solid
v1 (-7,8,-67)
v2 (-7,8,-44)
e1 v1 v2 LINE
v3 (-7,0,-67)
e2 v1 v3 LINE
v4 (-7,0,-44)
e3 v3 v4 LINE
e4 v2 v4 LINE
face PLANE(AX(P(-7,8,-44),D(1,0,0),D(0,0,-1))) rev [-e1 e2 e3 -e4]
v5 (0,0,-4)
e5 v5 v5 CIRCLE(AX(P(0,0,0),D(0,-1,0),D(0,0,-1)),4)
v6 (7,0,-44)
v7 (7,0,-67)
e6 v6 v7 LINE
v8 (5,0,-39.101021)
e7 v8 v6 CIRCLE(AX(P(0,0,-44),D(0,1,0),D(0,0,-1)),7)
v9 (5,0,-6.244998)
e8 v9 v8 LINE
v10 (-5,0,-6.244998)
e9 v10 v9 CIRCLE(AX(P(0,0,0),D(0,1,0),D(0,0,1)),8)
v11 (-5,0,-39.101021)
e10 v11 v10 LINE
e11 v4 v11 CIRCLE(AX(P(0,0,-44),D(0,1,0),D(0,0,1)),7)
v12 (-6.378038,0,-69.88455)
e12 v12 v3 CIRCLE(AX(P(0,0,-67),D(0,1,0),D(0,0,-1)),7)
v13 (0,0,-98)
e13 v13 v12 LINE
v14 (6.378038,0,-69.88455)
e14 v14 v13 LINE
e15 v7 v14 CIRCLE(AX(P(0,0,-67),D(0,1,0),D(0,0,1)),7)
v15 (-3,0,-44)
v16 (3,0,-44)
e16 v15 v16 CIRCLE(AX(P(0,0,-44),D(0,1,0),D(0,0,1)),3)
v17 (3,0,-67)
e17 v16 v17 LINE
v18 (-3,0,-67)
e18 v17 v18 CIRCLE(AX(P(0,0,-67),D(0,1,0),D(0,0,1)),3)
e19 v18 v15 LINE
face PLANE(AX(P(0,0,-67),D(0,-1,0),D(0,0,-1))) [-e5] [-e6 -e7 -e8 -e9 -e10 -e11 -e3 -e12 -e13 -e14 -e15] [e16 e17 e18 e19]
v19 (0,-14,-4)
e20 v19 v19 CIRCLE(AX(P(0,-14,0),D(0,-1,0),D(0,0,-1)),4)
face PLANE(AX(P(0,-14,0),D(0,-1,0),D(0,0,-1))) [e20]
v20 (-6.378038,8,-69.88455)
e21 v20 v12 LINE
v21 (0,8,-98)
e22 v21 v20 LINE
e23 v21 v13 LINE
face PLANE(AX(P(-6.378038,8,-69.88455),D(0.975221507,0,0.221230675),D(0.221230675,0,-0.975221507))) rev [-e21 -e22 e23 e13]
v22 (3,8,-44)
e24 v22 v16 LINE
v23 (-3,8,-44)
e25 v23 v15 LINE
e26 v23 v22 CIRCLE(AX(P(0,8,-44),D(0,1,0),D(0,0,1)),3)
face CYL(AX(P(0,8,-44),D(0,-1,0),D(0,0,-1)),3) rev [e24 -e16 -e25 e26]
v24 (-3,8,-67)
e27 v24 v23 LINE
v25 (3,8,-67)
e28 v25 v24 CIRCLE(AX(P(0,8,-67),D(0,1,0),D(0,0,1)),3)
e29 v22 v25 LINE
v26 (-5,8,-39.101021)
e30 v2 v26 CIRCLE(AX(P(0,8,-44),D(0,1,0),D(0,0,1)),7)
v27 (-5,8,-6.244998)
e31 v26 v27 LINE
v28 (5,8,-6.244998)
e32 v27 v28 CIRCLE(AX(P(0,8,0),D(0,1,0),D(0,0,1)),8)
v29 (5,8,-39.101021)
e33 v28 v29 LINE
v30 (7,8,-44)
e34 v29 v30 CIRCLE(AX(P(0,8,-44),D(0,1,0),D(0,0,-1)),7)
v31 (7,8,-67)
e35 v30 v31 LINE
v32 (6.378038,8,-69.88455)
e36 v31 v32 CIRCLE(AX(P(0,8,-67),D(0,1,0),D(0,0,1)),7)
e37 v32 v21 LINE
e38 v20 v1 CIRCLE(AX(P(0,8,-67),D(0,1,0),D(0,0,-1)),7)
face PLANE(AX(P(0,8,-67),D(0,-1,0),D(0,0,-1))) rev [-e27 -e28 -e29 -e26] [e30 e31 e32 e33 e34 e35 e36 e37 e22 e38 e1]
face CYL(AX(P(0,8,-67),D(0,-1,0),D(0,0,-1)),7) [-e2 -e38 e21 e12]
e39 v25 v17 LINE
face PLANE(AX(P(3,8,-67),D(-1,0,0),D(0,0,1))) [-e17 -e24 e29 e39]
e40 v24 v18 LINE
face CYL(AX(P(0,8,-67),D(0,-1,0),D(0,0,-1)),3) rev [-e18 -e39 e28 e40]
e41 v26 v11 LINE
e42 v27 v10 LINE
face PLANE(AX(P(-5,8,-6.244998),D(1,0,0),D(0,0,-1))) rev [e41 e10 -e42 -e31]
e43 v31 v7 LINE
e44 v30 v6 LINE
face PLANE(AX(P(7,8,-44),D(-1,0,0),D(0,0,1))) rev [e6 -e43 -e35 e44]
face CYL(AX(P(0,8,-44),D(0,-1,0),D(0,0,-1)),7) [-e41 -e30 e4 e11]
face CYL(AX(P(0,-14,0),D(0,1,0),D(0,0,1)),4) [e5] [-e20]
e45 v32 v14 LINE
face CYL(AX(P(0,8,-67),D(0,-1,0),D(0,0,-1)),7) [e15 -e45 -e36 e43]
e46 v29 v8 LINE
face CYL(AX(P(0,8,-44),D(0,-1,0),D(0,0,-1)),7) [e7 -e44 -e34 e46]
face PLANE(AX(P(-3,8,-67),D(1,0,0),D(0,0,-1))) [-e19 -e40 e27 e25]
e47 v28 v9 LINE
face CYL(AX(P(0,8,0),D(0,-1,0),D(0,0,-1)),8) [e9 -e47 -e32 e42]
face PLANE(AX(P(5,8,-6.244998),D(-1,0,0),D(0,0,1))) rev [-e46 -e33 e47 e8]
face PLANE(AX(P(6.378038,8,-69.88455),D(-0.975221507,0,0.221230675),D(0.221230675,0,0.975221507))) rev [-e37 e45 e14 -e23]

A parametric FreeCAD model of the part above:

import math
import FreeCAD as App
import Part
import Sketcher

doc = App.newDocument("Part")
body = doc.addObject("PartDesign::Body", "Body")

# Sketch on XZ plane
sketch1 = body.newObject("Sketcher::SketchObject", "Sketch")
sketch1.AttachmentSupport = (doc.getObject("XZ_Plane"), [""])
sketch1.MapMode = "FlatFace"
sketch1.addGeometry([
    Part.LineSegment(App.Vector(-5, -39.1, 0), App.Vector(-5, -6.2, 0)),  # 0
    Part.ArcOfCircle(Part.Circle(App.Vector(0, 0, 0), App.Vector(0, 0, 1), 8), math.radians(-51), math.radians(231)),  # 1
    Part.LineSegment(App.Vector(5, -6.2, 0), App.Vector(5, -39.1, 0)),  # 2
    Part.ArcOfCircle(Part.Circle(App.Vector(0, -44, 0), App.Vector(0, 0, 1), 7), math.radians(0), math.radians(44)),  # 3
    Part.LineSegment(App.Vector(7, -44, 0), App.Vector(7, -67, 0)),  # 4
    Part.ArcOfCircle(Part.Circle(App.Vector(0, -67, 0), App.Vector(0, 0, 1), 7), math.radians(-24), math.radians(0)),  # 5
    Part.LineSegment(App.Vector(6.4, -69.9, 0), App.Vector(0, -98, 0)),  # 6
    Part.LineSegment(App.Vector(0, -98, 0), App.Vector(-6.4, -69.9, 0)),  # 7
    Part.ArcOfCircle(Part.Circle(App.Vector(0, -67, 0), App.Vector(0, 0, 1), 7), math.radians(180), math.radians(204)),  # 8
    Part.LineSegment(App.Vector(-7, -67, 0), App.Vector(-7, -44, 0)),  # 9
    Part.ArcOfCircle(Part.Circle(App.Vector(0, -44, 0), App.Vector(0, 0, 1), 7), math.radians(136), math.radians(180)),  # 10
    Part.ArcOfCircle(Part.Circle(App.Vector(0, -67, 0), App.Vector(0, 0, 1), 3), math.radians(180), math.radians(360)),  # 11
    Part.LineSegment(App.Vector(3, -67, 0), App.Vector(3, -44, 0)),  # 12
    Part.ArcOfCircle(Part.Circle(App.Vector(0, -44, 0), App.Vector(0, 0, 1), 3), math.radians(0), math.radians(180)),  # 13
    Part.LineSegment(App.Vector(-3, -44, 0), App.Vector(-3, -67, 0)),  # 14
], False)
sketch1.addConstraint([
    Sketcher.Constraint("Coincident", 0, 2, 1, 2),
    Sketcher.Constraint("Coincident", 1, 1, 2, 1),
    Sketcher.Constraint("Coincident", 2, 2, 3, 2),
    Sketcher.Constraint("Tangent", 3, 1, 4, 1),
    Sketcher.Constraint("Tangent", 4, 2, 5, 2),
    Sketcher.Constraint("Coincident", 5, 1, 6, 1),
    Sketcher.Constraint("Coincident", 6, 2, 7, 1),
    Sketcher.Constraint("Coincident", 7, 2, 8, 2),
    Sketcher.Constraint("Tangent", 8, 1, 9, 1),
    Sketcher.Constraint("Tangent", 9, 2, 10, 2),
    Sketcher.Constraint("Coincident", 10, 1, 0, 1),
    Sketcher.Constraint("Tangent", 11, 2, 12, 1),
    Sketcher.Constraint("Tangent", 12, 2, 13, 1),
    Sketcher.Constraint("Tangent", 13, 2, 14, 1),
    Sketcher.Constraint("Tangent", 14, 2, 11, 1),
    Sketcher.Constraint("Vertical", 0),
    Sketcher.Constraint("Vertical", 2),
    Sketcher.Constraint("Vertical", 4),
    Sketcher.Constraint("Vertical", 9),
    Sketcher.Constraint("Vertical", 12),
    Sketcher.Constraint("Vertical", 14),
    Sketcher.Constraint("Coincident", 1, 3, -1, 1),
    Sketcher.Constraint("Coincident", 8, 3, 5, 3),
    Sketcher.Constraint("Coincident", 10, 3, 3, 3),
    Sketcher.Constraint("Coincident", 11, 3, 5, 3),
    Sketcher.Constraint("Coincident", 13, 3, 3, 3),
    Sketcher.Constraint("Equal", 5, 8),
    Sketcher.Constraint("Symmetric", 5, 1, 7, 2, -2),
    Sketcher.Constraint("PointOnObject", 6, 2, -2),
    Sketcher.Constraint("Horizontal", 0, 2, 1, 1),
    Sketcher.Constraint("Radius", 1, 8.0),
    Sketcher.Constraint("Radius", 3, 7.0),
    Sketcher.Constraint("Radius", 11, 3.0),
    Sketcher.Constraint("DistanceY", 4, 2, 4, 1, 23.0),
    Sketcher.Constraint("DistanceY", 3, 3, -1, 1, 44.0),
    Sketcher.Constraint("DistanceX", 0, 2, -1, 1, 5.0),
    Sketcher.Constraint("DistanceY", 6, 2, -1, 1, 98.0),
    Sketcher.Constraint("Distance", 6, 28.829809),
])
pad1 = body.newObject("PartDesign::Pad", "Pad")
pad1.Profile = sketch1
pad1.Length = 8
pad1.Reversed = True

# Sketch on XZ plane
sketch2 = body.newObject("Sketcher::SketchObject", "Sketch001")
sketch2.AttachmentSupport = (doc.getObject("XZ_Plane"), [""])
sketch2.MapMode = "FlatFace"
sketch2.addGeometry(Part.Circle(App.Vector(0, 0, 0), App.Vector(0, 0, 1), 4), False)
sketch2.addConstraint([
    Sketcher.Constraint("Coincident", 0, 3, -1, 1),
    Sketcher.Constraint("Diameter", 0, 8.0),
])
pad2 = body.newObject("PartDesign::Pad", "Pad001")
pad2.Profile = sketch2
pad2.Length = 14

doc.recompute()
